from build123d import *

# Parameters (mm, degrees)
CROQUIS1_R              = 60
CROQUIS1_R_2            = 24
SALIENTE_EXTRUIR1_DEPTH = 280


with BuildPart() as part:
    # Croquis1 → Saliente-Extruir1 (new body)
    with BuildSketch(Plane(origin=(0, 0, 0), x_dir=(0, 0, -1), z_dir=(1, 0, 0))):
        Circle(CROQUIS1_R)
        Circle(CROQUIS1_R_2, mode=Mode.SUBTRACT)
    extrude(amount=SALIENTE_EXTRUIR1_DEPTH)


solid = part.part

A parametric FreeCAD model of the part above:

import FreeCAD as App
import Part
import Sketcher
from FreeCAD import Vector
Q = App.Units.Quantity

doc = App.newDocument("Part")
params = doc.addObject("Spreadsheet::Sheet", "Params")
for row, (alias, value) in enumerate([
    ("sketch1_diameter", "120 mm"),
    ("sketch1_diameter2", "48 mm"),
    ("pad1_length", "280 mm"),
], start=1):
    params.set(f"A{row}", alias)
    params.set(f"B{row}", "=" + value)
    params.setAlias(f"B{row}", alias)

body = doc.addObject("PartDesign::Body", "Body")

# Sketch on YZ plane
sketch1 = body.newObject("Sketcher::SketchObject", "Sketch")
sketch1.AttachmentSupport = (doc.getObject("YZ_Plane"), [""])
sketch1.MapMode = "FlatFace"
sketch1.addGeometry([
    Part.Circle(Vector(0, 0, 0), Vector(0, 0, 1), 60),
    Part.Circle(Vector(0, 0, 0), Vector(0, 0, 1), 24),
], False)
sketch1.addConstraint([
    Sketcher.Constraint("Coincident", 0, 3, -1, 1),
    Sketcher.Constraint("Coincident", 1, 3, -1, 1),
    Sketcher.Constraint("Diameter", 0, Q("120 mm")),
    Sketcher.Constraint("Diameter", 1, Q("48 mm")),
])
sketch1.setExpression("Constraints[2]", "Params.sketch1_diameter")
sketch1.setExpression("Constraints[3]", "Params.sketch1_diameter2")
pad1 = body.newObject("PartDesign::Pad", "Pad")
pad1.Profile = sketch1
pad1.setExpression("Length", "Params.pad1_length")

doc.recompute()
